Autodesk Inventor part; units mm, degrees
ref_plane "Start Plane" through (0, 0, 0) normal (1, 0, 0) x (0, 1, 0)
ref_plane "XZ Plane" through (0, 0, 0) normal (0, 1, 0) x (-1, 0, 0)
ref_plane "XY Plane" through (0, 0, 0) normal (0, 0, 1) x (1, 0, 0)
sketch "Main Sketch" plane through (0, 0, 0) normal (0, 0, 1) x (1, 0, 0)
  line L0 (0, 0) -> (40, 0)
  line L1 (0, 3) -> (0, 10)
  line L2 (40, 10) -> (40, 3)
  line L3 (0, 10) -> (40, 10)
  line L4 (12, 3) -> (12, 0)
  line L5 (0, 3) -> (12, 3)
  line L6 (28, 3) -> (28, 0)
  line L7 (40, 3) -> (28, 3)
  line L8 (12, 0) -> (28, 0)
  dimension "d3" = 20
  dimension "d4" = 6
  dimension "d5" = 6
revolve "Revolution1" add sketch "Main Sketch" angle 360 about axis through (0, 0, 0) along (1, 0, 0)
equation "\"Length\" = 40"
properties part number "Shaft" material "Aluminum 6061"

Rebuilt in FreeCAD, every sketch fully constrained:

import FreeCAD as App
import Part
import Sketcher

V = App.Vector
Q = App.Units.Quantity


def add_polygon(sketch, points):
    """Adds a closed chain of lines whose ends are joined by coincident constraints."""
    first, n = sketch.GeometryCount, len(points)
    for a, b in zip(points, points[1:] + points[:1]):
        sketch.addGeometry(Part.LineSegment(App.Vector(*a, 0), App.Vector(*b, 0)), False)
    for i in range(n):
        sketch.addConstraint(Sketcher.Constraint("Coincident", first + i, 2, first + (i + 1) % n, 1))

doc = App.newDocument("Part")
body = doc.addObject("PartDesign::Body", "Body")

sketch1 = body.newObject("Sketcher::SketchObject", "Sketch")
sketch1.AttachmentSupport = (doc.getObject("XY_Plane"), [""])
sketch1.MapMode = "FlatFace"
add_polygon(sketch1, [(12, 3), (12, 0), (28, 0), (28, 3), (40, 3), (40, 10), (0, 10), (0, 3)])
sketch1.addConstraint(Sketcher.Constraint("Vertical", 0))
sketch1.addConstraint(Sketcher.Constraint("Horizontal", 1))
sketch1.addConstraint(Sketcher.Constraint("Vertical", 2))
sketch1.addConstraint(Sketcher.Constraint("Horizontal", 3))
sketch1.addConstraint(Sketcher.Constraint("Vertical", 4))
sketch1.addConstraint(Sketcher.Constraint("Horizontal", 5))
sketch1.addConstraint(Sketcher.Constraint("Vertical", 6))
sketch1.addConstraint(Sketcher.Constraint("Horizontal", 7))
sketch1.addConstraint(Sketcher.Constraint("PointOnObject", 0, 2, -1))
sketch1.addConstraint(Sketcher.Constraint("PointOnObject", 5, 2, -2))
sketch1.addConstraint(Sketcher.Constraint("Horizontal", 3, 2, 6, 2))
sketch1.addConstraint(Sketcher.Constraint("Equal", 3, 7))
sketch1.addConstraint(Sketcher.Constraint("DistanceX", 1, 1, 1, 2, Q("16 mm")))
sketch1.addConstraint(Sketcher.Constraint("DistanceX", 3, 1, 3, 2, Q("12 mm")))
sketch1.addConstraint(Sketcher.Constraint("DistanceY", 0, 2, 0, 1, Q("3 mm")))
sketch1.addConstraint(Sketcher.Constraint("DistanceY", 4, 1, 4, 2, Q("7 mm")))
revolution = body.newObject("PartDesign::Revolution", "Revolution")
revolution.Profile = sketch1
revolution.ReferenceAxis = (sketch1, ["H_Axis"])
revolution.Angle = 360

doc.recompute()
